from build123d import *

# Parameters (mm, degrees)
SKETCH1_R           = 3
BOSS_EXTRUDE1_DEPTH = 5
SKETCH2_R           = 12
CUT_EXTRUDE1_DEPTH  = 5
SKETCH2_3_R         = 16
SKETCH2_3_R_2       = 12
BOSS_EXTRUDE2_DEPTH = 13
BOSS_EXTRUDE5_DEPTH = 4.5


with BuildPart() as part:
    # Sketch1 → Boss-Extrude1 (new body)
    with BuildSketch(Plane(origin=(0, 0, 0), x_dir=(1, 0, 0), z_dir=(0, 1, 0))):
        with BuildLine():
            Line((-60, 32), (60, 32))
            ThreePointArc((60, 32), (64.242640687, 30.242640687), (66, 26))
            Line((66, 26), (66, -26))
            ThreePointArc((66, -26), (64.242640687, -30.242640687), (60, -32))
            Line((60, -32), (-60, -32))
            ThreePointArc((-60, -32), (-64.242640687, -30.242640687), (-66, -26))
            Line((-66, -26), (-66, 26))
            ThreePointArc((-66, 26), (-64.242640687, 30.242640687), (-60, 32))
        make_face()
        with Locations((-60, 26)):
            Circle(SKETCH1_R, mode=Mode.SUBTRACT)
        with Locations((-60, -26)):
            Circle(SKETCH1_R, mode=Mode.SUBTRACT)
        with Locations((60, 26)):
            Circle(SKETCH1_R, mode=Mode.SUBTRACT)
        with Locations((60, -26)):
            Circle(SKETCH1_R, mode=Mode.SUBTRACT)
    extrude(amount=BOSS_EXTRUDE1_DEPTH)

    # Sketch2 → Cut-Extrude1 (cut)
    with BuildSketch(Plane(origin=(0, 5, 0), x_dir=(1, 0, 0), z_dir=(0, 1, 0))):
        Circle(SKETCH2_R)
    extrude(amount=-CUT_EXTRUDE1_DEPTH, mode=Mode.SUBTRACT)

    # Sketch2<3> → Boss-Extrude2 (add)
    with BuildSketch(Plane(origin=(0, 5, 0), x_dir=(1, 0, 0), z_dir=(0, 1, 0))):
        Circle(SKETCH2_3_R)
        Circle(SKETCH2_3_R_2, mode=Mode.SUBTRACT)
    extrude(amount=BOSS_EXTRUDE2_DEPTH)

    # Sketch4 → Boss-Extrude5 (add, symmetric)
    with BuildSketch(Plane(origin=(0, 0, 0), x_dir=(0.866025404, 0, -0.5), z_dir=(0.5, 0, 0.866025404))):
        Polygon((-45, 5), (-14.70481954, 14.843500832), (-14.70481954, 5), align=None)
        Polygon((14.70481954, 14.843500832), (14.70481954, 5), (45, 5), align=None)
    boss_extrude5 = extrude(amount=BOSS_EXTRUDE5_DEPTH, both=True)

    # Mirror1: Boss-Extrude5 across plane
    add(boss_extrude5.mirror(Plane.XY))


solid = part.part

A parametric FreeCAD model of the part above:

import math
import FreeCAD as App
import Part
import Sketcher
Q = App.Units.Quantity

doc = App.newDocument("Part")
body = doc.addObject("PartDesign::Body", "Body")

# Sketch on XZ plane
sketch1 = body.newObject("Sketcher::SketchObject", "Sketch")
sketch1.AttachmentSupport = (doc.getObject("XZ_Plane"), [""])
sketch1.MapMode = "FlatFace"
sketch1.addGeometry([
    Part.LineSegment(App.Vector(60, -32, 0), App.Vector(-60, -32, 0)),  # 0
    Part.ArcOfCircle(Part.Circle(App.Vector(-60, -26, 0), App.Vector(0, 0, 1), 6), math.radians(180), math.radians(270)),  # 1
    Part.LineSegment(App.Vector(-66, -26, 0), App.Vector(-66, 26, 0)),  # 2
    Part.ArcOfCircle(Part.Circle(App.Vector(-60, 26, 0), App.Vector(0, 0, 1), 6), math.radians(90), math.radians(180)),  # 3
    Part.LineSegment(App.Vector(-60, 32, 0), App.Vector(60, 32, 0)),  # 4
    Part.ArcOfCircle(Part.Circle(App.Vector(60, 26, 0), App.Vector(0, 0, 1), 6), math.radians(0), math.radians(90)),  # 5
    Part.LineSegment(App.Vector(66, 26, 0), App.Vector(66, -26, 0)),  # 6
    Part.ArcOfCircle(Part.Circle(App.Vector(60, -26, 0), App.Vector(0, 0, 1), 6), math.radians(-90), math.radians(0)),  # 7
    Part.Circle(App.Vector(60, 26, 0), App.Vector(0, 0, 1), 3),  # 8
    Part.Circle(App.Vector(-60, 26, 0), App.Vector(0, 0, 1), 3),  # 9
    Part.Circle(App.Vector(60, -26, 0), App.Vector(0, 0, 1), 3),  # 10
    Part.Circle(App.Vector(-60, -26, 0), App.Vector(0, 0, 1), 3),  # 11
], False)
sketch1.addConstraint([
    Sketcher.Constraint("Tangent", 0, 2, 1, 2),
    Sketcher.Constraint("Tangent", 1, 1, 2, 1),
    Sketcher.Constraint("Tangent", 2, 2, 3, 2),
    Sketcher.Constraint("Tangent", 3, 1, 4, 1),
    Sketcher.Constraint("Tangent", 4, 2, 5, 2),
    Sketcher.Constraint("Tangent", 5, 1, 6, 1),
    Sketcher.Constraint("Tangent", 6, 2, 7, 2),
    Sketcher.Constraint("Tangent", 7, 1, 0, 1),
    Sketcher.Constraint("Horizontal", 0),
    Sketcher.Constraint("Vertical", 2),
    Sketcher.Constraint("Horizontal", 4),
    Sketcher.Constraint("Vertical", 6),
    Sketcher.Constraint("Coincident", 8, 3, 5, 3),
    Sketcher.Constraint("Coincident", 9, 3, 3, 3),
    Sketcher.Constraint("Coincident", 10, 3, 7, 3),
    Sketcher.Constraint("Coincident", 11, 3, 1, 3),
    Sketcher.Constraint("Equal", 1, 3),
    Sketcher.Constraint("Equal", 3, 5),
    Sketcher.Constraint("Equal", 5, 7),
    Sketcher.Constraint("Equal", 8, 9),
    Sketcher.Constraint("Equal", 9, 10),
    Sketcher.Constraint("Equal", 10, 11),
    Sketcher.Constraint("Symmetric", 1, 3, 5, 3, -1, 1),
    Sketcher.Constraint("Diameter", 8, 6.0),
    Sketcher.Constraint("Radius", 1, 6.0),
    Sketcher.Constraint("DistanceX", 0, 2, 0, 1, 120.0),
    Sketcher.Constraint("DistanceY", 2, 1, 2, 2, 52.0),
])
pad1 = body.newObject("PartDesign::Pad", "Pad")
pad1.Profile = sketch1
pad1.Length = 5
pad1.Reversed = True

# Sketch on XZ plane
sketch2 = body.newObject("Sketcher::SketchObject", "Sketch001")
sketch2.AttachmentSupport = (doc.getObject("XZ_Plane"), [""])
sketch2.MapMode = "FlatFace"
sketch2.AttachmentOffset = App.Placement(App.Vector(0, 0, -5), App.Rotation())
sketch2.addGeometry(Part.Circle(App.Vector(0, 0, 0), App.Vector(0, 0, 1), 12), False)
sketch2.addConstraint([
    Sketcher.Constraint("Coincident", 0, 3, -1, 1),
    Sketcher.Constraint("Diameter", 0, 24.0),
])
pocket1 = body.newObject("PartDesign::Pocket", "Pocket")
pocket1.Profile = sketch2
pocket1.Length = 5
pocket1.Reversed = True

# Sketch on XZ plane
sketch3 = body.newObject("Sketcher::SketchObject", "Sketch002")
sketch3.AttachmentSupport = (doc.getObject("XZ_Plane"), [""])
sketch3.MapMode = "FlatFace"
sketch3.AttachmentOffset = App.Placement(App.Vector(0, 0, -5), App.Rotation())
sketch3.addGeometry([
    Part.Circle(App.Vector(0, 0, 0), App.Vector(0, 0, 1), 16),
    Part.Circle(App.Vector(0, 0, 0), App.Vector(0, 0, 1), 12),
], False)
sketch3.addConstraint([
    Sketcher.Constraint("Coincident", 0, 3, -1, 1),
    Sketcher.Constraint("Coincident", 1, 3, -1, 1),
    Sketcher.Constraint("Diameter", 0, 32.0),
    Sketcher.Constraint("Diameter", 1, 24.0),
])
pad2 = body.newObject("PartDesign::Pad", "Pad001")
pad2.Profile = sketch3
pad2.Length = 13
pad2.Reversed = True

# Sketch on an angled plane
sketch4 = body.newObject("Sketcher::SketchObject", "Sketch003")
sketch4.Placement = App.Placement(App.Vector(0, 0, 0), App.Rotation(App.Vector(0.866025404, 0, -0.5), App.Vector(0, 1, 0), App.Vector(0.5, 0, 0.866025404), "ZXY"))
sketch4.addGeometry([
    Part.LineSegment(App.Vector(-14.70482, 14.843501, 0), App.Vector(-45, 5, 0)),  # 0
    Part.LineSegment(App.Vector(-45, 5, 0), App.Vector(-14.70482, 5, 0)),  # 1
    Part.LineSegment(App.Vector(-14.70482, 5, 0), App.Vector(-14.70482, 14.843501, 0)),  # 2
    Part.LineSegment(App.Vector(14.70482, 14.843501, 0), App.Vector(14.70482, 5, 0)),  # 3
    Part.LineSegment(App.Vector(14.70482, 5, 0), App.Vector(45, 5, 0)),  # 4
    Part.LineSegment(App.Vector(45, 5, 0), App.Vector(14.70482, 14.843501, 0)),  # 5
], False)
sketch4.addConstraint([
    Sketcher.Constraint("Coincident", 0, 2, 1, 1),
    Sketcher.Constraint("Coincident", 1, 2, 2, 1),
    Sketcher.Constraint("Coincident", 2, 2, 0, 1),
    Sketcher.Constraint("Coincident", 3, 2, 4, 1),
    Sketcher.Constraint("Coincident", 4, 2, 5, 1),
    Sketcher.Constraint("Coincident", 5, 2, 3, 1),
    Sketcher.Constraint("Horizontal", 1),
    Sketcher.Constraint("Vertical", 2),
    Sketcher.Constraint("Vertical", 3),
    Sketcher.Constraint("Horizontal", 4),
    Sketcher.Constraint("Symmetric", 1, 2, 3, 2, -2),
    Sketcher.Constraint("Horizontal", 2, 2, 5, 2),
    Sketcher.Constraint("Equal", 1, 4),
    Sketcher.Constraint("Angle", 0, Q("-162 deg")),
    Sketcher.Constraint("DistanceX", 0, 2, -1, 1, 45.0),
    Sketcher.Constraint("DistanceY", -1, 1, 0, 2, 5.0),
    Sketcher.Constraint("DistanceY", 2, 1, 2, 2, 9.843501),
])
pad3 = body.newObject("PartDesign::Pad", "Pad002")
pad3.Profile = sketch4
pad3.Length = 9
pad3.Midplane = True
doc.recompute()

mirrored = body.newObject("PartDesign::Mirrored", "Mirrored")
mirrored.Originals = [pad3]
mirrored.MirrorPlane = (doc.getObject("XY_Plane"), [""])
body.Tip = mirrored

doc.recompute()
